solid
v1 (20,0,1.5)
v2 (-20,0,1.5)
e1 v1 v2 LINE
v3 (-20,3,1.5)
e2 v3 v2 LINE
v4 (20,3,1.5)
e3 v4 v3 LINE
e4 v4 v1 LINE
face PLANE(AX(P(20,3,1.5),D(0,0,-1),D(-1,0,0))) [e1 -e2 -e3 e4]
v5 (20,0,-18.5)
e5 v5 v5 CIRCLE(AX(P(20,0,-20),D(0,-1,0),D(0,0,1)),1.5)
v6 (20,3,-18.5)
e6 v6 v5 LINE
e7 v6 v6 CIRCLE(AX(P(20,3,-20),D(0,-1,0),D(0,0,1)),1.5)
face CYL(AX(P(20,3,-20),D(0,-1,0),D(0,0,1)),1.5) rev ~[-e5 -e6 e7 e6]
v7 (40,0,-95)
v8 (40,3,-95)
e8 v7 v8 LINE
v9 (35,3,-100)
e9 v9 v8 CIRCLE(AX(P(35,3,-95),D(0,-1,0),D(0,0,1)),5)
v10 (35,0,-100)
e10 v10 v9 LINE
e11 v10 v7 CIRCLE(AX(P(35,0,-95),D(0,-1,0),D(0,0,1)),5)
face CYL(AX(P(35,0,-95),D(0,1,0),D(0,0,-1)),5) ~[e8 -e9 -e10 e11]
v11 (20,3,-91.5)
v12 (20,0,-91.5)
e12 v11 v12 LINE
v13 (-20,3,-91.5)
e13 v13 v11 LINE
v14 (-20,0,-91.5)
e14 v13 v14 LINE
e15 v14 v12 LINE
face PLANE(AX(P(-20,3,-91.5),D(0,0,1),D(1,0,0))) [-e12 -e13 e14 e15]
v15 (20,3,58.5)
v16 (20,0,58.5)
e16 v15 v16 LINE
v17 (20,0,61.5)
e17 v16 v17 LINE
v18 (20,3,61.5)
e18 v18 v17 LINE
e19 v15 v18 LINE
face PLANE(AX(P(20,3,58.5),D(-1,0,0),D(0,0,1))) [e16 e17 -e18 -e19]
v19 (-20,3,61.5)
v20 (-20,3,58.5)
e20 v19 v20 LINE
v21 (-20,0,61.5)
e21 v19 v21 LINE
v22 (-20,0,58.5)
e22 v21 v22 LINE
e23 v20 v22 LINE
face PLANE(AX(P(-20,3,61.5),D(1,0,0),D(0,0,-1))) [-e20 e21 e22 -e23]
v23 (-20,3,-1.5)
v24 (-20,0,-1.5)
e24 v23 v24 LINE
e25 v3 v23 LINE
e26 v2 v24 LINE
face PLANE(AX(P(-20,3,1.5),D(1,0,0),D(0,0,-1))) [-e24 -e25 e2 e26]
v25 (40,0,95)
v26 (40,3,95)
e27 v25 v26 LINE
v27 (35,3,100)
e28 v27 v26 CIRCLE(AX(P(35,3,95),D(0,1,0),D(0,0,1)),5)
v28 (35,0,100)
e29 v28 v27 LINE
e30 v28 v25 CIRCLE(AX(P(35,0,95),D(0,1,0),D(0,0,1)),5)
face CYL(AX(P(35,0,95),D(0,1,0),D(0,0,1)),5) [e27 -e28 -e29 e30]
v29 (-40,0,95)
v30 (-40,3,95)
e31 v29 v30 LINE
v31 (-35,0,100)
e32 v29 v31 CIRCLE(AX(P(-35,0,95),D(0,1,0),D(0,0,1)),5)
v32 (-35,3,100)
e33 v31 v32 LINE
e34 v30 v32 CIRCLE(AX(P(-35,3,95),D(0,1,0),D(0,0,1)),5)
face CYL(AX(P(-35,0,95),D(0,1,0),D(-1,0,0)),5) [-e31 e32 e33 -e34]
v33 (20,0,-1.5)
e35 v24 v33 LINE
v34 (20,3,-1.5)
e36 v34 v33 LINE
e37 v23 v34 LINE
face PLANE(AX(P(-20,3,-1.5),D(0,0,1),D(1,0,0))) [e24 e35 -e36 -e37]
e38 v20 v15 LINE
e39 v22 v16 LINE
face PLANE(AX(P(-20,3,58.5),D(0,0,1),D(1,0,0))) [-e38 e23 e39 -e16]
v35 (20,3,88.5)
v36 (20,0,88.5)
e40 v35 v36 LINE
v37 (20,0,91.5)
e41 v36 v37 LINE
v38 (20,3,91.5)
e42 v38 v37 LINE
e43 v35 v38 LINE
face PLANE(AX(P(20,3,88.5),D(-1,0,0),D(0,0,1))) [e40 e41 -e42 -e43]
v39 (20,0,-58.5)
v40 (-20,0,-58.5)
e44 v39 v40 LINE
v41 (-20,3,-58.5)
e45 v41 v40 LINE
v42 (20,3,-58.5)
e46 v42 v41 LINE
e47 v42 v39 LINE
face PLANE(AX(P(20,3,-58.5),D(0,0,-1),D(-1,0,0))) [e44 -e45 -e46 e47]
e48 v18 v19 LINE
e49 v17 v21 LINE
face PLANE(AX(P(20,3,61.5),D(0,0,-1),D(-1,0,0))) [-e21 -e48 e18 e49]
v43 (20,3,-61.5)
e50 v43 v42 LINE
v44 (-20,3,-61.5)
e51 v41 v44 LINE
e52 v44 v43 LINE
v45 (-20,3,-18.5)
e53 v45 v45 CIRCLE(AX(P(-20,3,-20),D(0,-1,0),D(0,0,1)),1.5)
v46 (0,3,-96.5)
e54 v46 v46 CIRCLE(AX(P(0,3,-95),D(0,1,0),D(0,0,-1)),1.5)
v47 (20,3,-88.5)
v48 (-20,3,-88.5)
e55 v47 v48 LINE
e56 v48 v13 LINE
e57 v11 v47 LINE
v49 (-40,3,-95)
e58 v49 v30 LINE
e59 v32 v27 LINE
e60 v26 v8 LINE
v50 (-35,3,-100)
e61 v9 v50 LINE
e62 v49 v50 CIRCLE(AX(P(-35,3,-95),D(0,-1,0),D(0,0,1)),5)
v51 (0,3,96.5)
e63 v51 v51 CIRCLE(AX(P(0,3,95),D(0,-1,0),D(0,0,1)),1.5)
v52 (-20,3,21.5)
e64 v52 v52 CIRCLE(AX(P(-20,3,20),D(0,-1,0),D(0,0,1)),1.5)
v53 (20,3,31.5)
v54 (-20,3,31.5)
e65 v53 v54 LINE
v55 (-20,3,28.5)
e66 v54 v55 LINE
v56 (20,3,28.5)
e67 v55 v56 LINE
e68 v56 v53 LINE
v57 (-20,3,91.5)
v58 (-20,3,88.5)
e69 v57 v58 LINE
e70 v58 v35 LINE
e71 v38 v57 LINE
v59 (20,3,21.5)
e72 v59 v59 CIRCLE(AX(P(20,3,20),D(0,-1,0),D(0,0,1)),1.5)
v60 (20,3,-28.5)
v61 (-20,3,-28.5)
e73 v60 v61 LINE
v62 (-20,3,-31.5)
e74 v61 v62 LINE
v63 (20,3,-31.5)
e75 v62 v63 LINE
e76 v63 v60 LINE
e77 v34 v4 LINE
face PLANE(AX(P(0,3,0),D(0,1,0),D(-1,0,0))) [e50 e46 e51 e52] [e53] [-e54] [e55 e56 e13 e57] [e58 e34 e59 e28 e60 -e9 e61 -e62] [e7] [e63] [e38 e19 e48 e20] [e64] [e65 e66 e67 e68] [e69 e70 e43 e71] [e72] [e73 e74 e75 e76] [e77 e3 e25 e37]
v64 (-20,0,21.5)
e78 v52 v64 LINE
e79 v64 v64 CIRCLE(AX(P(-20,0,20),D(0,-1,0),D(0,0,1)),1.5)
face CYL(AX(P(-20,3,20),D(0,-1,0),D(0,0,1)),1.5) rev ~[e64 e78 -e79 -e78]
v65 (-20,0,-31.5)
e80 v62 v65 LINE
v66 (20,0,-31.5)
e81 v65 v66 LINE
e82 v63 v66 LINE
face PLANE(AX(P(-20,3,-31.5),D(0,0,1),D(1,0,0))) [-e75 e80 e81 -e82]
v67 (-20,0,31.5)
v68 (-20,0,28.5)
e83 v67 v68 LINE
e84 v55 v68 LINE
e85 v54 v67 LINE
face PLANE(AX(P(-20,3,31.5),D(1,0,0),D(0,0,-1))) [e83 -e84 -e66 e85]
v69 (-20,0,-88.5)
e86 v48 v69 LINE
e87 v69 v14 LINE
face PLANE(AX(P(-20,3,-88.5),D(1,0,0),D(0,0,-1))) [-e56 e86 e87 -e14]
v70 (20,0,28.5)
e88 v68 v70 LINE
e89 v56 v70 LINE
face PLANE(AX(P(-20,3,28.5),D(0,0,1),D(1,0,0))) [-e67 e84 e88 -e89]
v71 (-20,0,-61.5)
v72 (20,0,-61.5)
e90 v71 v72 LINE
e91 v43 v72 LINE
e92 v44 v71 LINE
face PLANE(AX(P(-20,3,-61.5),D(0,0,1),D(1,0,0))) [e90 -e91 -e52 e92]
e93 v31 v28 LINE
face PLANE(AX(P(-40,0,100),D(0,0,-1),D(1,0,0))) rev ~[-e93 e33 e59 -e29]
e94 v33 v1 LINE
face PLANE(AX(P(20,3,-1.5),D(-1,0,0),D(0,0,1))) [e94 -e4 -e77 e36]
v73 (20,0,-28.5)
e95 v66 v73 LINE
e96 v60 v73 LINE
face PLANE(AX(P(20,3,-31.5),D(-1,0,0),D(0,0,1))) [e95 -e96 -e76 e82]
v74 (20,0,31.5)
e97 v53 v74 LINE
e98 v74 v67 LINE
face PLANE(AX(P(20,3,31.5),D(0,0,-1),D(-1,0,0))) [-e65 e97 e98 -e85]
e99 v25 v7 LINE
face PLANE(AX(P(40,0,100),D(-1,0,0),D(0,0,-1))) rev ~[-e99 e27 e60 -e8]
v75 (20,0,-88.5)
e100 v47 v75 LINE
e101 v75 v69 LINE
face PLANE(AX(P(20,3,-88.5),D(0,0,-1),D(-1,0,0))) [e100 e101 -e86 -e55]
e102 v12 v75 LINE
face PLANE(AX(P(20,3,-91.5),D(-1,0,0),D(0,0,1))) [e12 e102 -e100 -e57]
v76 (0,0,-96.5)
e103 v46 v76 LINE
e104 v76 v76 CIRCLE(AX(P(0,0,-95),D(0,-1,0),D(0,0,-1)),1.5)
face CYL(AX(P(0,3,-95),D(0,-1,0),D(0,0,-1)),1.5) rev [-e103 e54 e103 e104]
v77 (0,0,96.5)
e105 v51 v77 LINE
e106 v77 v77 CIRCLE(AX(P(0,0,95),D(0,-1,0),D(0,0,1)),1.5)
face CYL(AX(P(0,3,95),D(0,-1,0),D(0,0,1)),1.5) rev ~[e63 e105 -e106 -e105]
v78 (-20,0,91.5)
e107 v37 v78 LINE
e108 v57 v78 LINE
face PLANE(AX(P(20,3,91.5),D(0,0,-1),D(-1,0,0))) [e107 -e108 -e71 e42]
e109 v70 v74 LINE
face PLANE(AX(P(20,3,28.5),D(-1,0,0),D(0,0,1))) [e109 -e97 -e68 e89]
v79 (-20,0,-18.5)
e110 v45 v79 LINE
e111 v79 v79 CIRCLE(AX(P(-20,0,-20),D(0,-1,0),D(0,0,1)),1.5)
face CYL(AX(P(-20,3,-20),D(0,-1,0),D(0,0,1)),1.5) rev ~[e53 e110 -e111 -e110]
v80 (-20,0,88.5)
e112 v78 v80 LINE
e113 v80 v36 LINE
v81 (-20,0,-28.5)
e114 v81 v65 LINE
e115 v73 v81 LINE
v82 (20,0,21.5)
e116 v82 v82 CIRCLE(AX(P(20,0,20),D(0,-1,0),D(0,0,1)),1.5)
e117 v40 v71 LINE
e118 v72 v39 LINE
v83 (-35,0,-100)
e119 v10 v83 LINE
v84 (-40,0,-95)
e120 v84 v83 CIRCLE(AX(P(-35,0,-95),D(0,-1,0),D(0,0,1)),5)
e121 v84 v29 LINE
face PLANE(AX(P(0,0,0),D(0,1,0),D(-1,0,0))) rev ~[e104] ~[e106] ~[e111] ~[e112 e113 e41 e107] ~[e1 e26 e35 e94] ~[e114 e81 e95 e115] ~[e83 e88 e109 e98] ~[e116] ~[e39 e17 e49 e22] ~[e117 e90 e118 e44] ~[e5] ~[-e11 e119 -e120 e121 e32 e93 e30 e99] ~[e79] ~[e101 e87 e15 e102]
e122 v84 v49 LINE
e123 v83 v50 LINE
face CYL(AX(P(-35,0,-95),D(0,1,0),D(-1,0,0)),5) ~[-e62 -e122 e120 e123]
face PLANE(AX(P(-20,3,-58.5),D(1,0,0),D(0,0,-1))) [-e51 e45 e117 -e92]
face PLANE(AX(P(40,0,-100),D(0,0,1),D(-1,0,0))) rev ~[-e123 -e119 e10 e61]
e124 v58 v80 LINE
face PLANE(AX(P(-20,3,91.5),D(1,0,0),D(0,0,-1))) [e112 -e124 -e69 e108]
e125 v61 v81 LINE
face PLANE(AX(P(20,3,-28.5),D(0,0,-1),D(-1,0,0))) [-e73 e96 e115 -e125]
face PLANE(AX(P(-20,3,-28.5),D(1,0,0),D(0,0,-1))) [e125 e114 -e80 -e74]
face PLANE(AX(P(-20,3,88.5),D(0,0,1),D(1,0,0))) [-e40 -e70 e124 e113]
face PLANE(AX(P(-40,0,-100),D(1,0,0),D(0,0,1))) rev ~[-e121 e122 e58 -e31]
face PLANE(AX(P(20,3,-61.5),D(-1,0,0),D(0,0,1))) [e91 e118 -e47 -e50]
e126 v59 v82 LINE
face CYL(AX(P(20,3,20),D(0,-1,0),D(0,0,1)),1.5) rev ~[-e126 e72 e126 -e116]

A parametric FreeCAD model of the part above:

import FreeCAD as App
import Part
import Sketcher
Q = App.Units.Quantity


def edges_at(feature, points):
    """Names of the edges that pass closest to the given points."""
    edges = feature.Shape.Edges
    near = lambda p: min(range(len(edges)), key=lambda i: edges[i].distToShape(Part.Vertex(*p))[0])
    return sorted({f"Edge{near(p) + 1}" for p in points})

doc = App.newDocument("Part")
params = doc.addObject("Spreadsheet::Sheet", "Params")
for row, (alias, value) in enumerate([
    ("sketch1_width", "80 mm"),
    ("sketch1_height", "200 mm"),
    ("pad1_length", "3 mm"),
    ("sketch2_diameter", "3 mm"),
    ("hole_diameter", "3 mm"),
    ("sketch3_width", "40 mm"),
    ("sketch3_height", "3 mm"),
    ("pocket1_length", "3 mm"),
    ("sketch4_diameter", "3 mm"),
    ("hole2_diameter", "3 mm"),
    ("fillet_radius", "5 mm"),
], start=1):
    params.set(f"A{row}", alias)
    params.set(f"B{row}", "=" + value)
    params.setAlias(f"B{row}", alias)

body = doc.addObject("PartDesign::Body", "Body")

# Sketch on XZ plane
sketch1 = doc.addObject("Sketcher::SketchObject", "Sketch")
body.addObject(sketch1)
sketch1.AttachmentSupport = (doc.XZ_Plane, [""])
sketch1.MapMode = "FlatFace"
sketch1.addGeometry([
    Part.LineSegment(App.Vector(-40, -100, 0), App.Vector(-40, 100, 0)),
    Part.LineSegment(App.Vector(-40, 100, 0), App.Vector(40, 100, 0)),
    Part.LineSegment(App.Vector(40, 100, 0), App.Vector(40, -100, 0)),
    Part.LineSegment(App.Vector(40, -100, 0), App.Vector(-40, -100, 0)),
], False)
sketch1.addConstraint([
    Sketcher.Constraint("Coincident", 0, 2, 1, 1),
    Sketcher.Constraint("Coincident", 1, 2, 2, 1),
    Sketcher.Constraint("Coincident", 2, 2, 3, 1),
    Sketcher.Constraint("Coincident", 3, 2, 0, 1),
    Sketcher.Constraint("Vertical", 0),
    Sketcher.Constraint("Horizontal", 1),
    Sketcher.Constraint("Vertical", 2),
    Sketcher.Constraint("Horizontal", 3),
    Sketcher.Constraint("Symmetric", 0, 2, 2, 2, -1, 1),
    Sketcher.Constraint("DistanceX", 1, 1, 1, 2, Q("80 mm")),
    Sketcher.Constraint("DistanceY", 0, 1, 0, 2, Q("200 mm")),
])
sketch1.setExpression("Constraints[9]", "Params.sketch1_width")
sketch1.setExpression("Constraints[10]", "Params.sketch1_height")
pad1 = doc.addObject("PartDesign::Pad", "Pad")
body.addObject(pad1)
pad1.Profile = sketch1
pad1.setExpression("Length", "Params.pad1_length")
pad1.Reversed = True

# Sketch on XZ plane
sketch2 = doc.addObject("Sketcher::SketchObject", "Sketch001")
body.addObject(sketch2)
sketch2.AttachmentSupport = (doc.XZ_Plane, [""])
sketch2.MapMode = "FlatFace"
sketch2.AttachmentOffset = App.Placement(App.Vector(0, 0, -3), App.Rotation())
sketch2.addGeometry([
    Part.Circle(App.Vector(-20, 20, 0), App.Vector(0, 0, 1), 1.5),
    Part.Circle(App.Vector(-20, -20, 0), App.Vector(0, 0, 1), 1.5),
    Part.Circle(App.Vector(20, -20, 0), App.Vector(0, 0, 1), 1.5),
    Part.Circle(App.Vector(20, 20, 0), App.Vector(0, 0, 1), 1.5),
], False)
sketch2.addConstraint([
    Sketcher.Constraint("Equal", 0, 1),
    Sketcher.Constraint("Equal", 1, 2),
    Sketcher.Constraint("Equal", 2, 3),
    Sketcher.Constraint("Symmetric", 0, 3, 2, 3, -1, 1),
    Sketcher.Constraint("Symmetric", 1, 3, 3, 3, -1, 1),
    Sketcher.Constraint("Symmetric", 1, 3, 2, 3, -2),
    Sketcher.Constraint("Diameter", 0, Q("3 mm")),
    Sketcher.Constraint("DistanceX", 0, 3, -1, 1, Q("20 mm")),
    Sketcher.Constraint("DistanceY", -1, 1, 0, 3, Q("20 mm")),
])
sketch2.setExpression("Constraints[6]", "Params.sketch2_diameter")
doc.recompute()
hole = doc.addObject("PartDesign::Hole", "Hole")
body.addObject(hole)
hole.Profile = sketch2
hole.ThreadType = "None"
hole.setExpression("Diameter", "Params.hole_diameter")
hole.DepthType = "ThroughAll"
hole.Reversed = True

# Sketch on XZ plane
sketch3 = doc.addObject("Sketcher::SketchObject", "Sketch002")
body.addObject(sketch3)
sketch3.AttachmentSupport = (doc.XZ_Plane, [""])
sketch3.MapMode = "FlatFace"
sketch3.AttachmentOffset = App.Placement(App.Vector(0, 0, -3), App.Rotation())
sketch3.addGeometry([
    Part.LineSegment(App.Vector(-20, 1.5, 0), App.Vector(20, 1.5, 0)),  # 0
    Part.LineSegment(App.Vector(20, 1.5, 0), App.Vector(20, -1.5, 0)),  # 1
    Part.LineSegment(App.Vector(20, -1.5, 0), App.Vector(-20, -1.5, 0)),  # 2
    Part.LineSegment(App.Vector(-20, -1.5, 0), App.Vector(-20, 1.5, 0)),  # 3
    Part.LineSegment(App.Vector(20, 28.5, 0), App.Vector(-20, 28.5, 0)),  # 4
    Part.LineSegment(App.Vector(-20, 28.5, 0), App.Vector(-20, 31.5, 0)),  # 5
    Part.LineSegment(App.Vector(-20, 31.5, 0), App.Vector(20, 31.5, 0)),  # 6
    Part.LineSegment(App.Vector(20, 31.5, 0), App.Vector(20, 28.5, 0)),  # 7
    Part.LineSegment(App.Vector(20, 58.5, 0), App.Vector(-20, 58.5, 0)),  # 8
    Part.LineSegment(App.Vector(-20, 58.5, 0), App.Vector(-20, 61.5, 0)),  # 9
    Part.LineSegment(App.Vector(-20, 61.5, 0), App.Vector(20, 61.5, 0)),  # 10
    Part.LineSegment(App.Vector(20, 61.5, 0), App.Vector(20, 58.5, 0)),  # 11
    Part.LineSegment(App.Vector(20, 88.5, 0), App.Vector(-20, 88.5, 0)),  # 12
    Part.LineSegment(App.Vector(-20, 88.5, 0), App.Vector(-20, 91.5, 0)),  # 13
    Part.LineSegment(App.Vector(-20, 91.5, 0), App.Vector(20, 91.5, 0)),  # 14
    Part.LineSegment(App.Vector(20, 91.5, 0), App.Vector(20, 88.5, 0)),  # 15
    Part.LineSegment(App.Vector(20, -31.5, 0), App.Vector(-20, -31.5, 0)),  # 16
    Part.LineSegment(App.Vector(-20, -31.5, 0), App.Vector(-20, -28.5, 0)),  # 17
    Part.LineSegment(App.Vector(-20, -28.5, 0), App.Vector(20, -28.5, 0)),  # 18
    Part.LineSegment(App.Vector(20, -28.5, 0), App.Vector(20, -31.5, 0)),  # 19
    Part.LineSegment(App.Vector(20, -61.5, 0), App.Vector(-20, -61.5, 0)),  # 20
    Part.LineSegment(App.Vector(-20, -61.5, 0), App.Vector(-20, -58.5, 0)),  # 21
    Part.LineSegment(App.Vector(-20, -58.5, 0), App.Vector(20, -58.5, 0)),  # 22
    Part.LineSegment(App.Vector(20, -58.5, 0), App.Vector(20, -61.5, 0)),  # 23
    Part.LineSegment(App.Vector(20, -91.5, 0), App.Vector(-20, -91.5, 0)),  # 24
    Part.LineSegment(App.Vector(-20, -91.5, 0), App.Vector(-20, -88.5, 0)),  # 25
    Part.LineSegment(App.Vector(-20, -88.5, 0), App.Vector(20, -88.5, 0)),  # 26
    Part.LineSegment(App.Vector(20, -88.5, 0), App.Vector(20, -91.5, 0)),  # 27
], False)
sketch3.addConstraint([
    Sketcher.Constraint("Coincident", 0, 2, 1, 1),
    Sketcher.Constraint("Coincident", 1, 2, 2, 1),
    Sketcher.Constraint("Coincident", 2, 2, 3, 1),
    Sketcher.Constraint("Coincident", 3, 2, 0, 1),
    Sketcher.Constraint("Coincident", 4, 2, 5, 1),
    Sketcher.Constraint("Coincident", 5, 2, 6, 1),
    Sketcher.Constraint("Coincident", 6, 2, 7, 1),
    Sketcher.Constraint("Coincident", 7, 2, 4, 1),
    Sketcher.Constraint("Coincident", 8, 2, 9, 1),
    Sketcher.Constraint("Coincident", 9, 2, 10, 1),
    Sketcher.Constraint("Coincident", 10, 2, 11, 1),
    Sketcher.Constraint("Coincident", 11, 2, 8, 1),
    Sketcher.Constraint("Coincident", 12, 2, 13, 1),
    Sketcher.Constraint("Coincident", 13, 2, 14, 1),
    Sketcher.Constraint("Coincident", 14, 2, 15, 1),
    Sketcher.Constraint("Coincident", 15, 2, 12, 1),
    Sketcher.Constraint("Coincident", 16, 2, 17, 1),
    Sketcher.Constraint("Coincident", 17, 2, 18, 1),
    Sketcher.Constraint("Coincident", 18, 2, 19, 1),
    Sketcher.Constraint("Coincident", 19, 2, 16, 1),
    Sketcher.Constraint("Coincident", 20, 2, 21, 1),
    Sketcher.Constraint("Coincident", 21, 2, 22, 1),
    Sketcher.Constraint("Coincident", 22, 2, 23, 1),
    Sketcher.Constraint("Coincident", 23, 2, 20, 1),
    Sketcher.Constraint("Coincident", 24, 2, 25, 1),
    Sketcher.Constraint("Coincident", 25, 2, 26, 1),
    Sketcher.Constraint("Coincident", 26, 2, 27, 1),
    Sketcher.Constraint("Coincident", 27, 2, 24, 1),
    Sketcher.Constraint("Horizontal", 0),
    Sketcher.Constraint("Vertical", 1),
    Sketcher.Constraint("Horizontal", 2),
    Sketcher.Constraint("Vertical", 3),
    Sketcher.Constraint("Horizontal", 4),
    Sketcher.Constraint("Vertical", 5),
    Sketcher.Constraint("Horizontal", 6),
    Sketcher.Constraint("Vertical", 7),
    Sketcher.Constraint("Horizontal", 8),
    Sketcher.Constraint("Vertical", 9),
    Sketcher.Constraint("Horizontal", 10),
    Sketcher.Constraint("Vertical", 11),
    Sketcher.Constraint("Horizontal", 12),
    Sketcher.Constraint("Vertical", 13),
    Sketcher.Constraint("Horizontal", 14),
    Sketcher.Constraint("Vertical", 15),
    Sketcher.Constraint("Horizontal", 16),
    Sketcher.Constraint("Vertical", 17),
    Sketcher.Constraint("Horizontal", 18),
    Sketcher.Constraint("Vertical", 19),
    Sketcher.Constraint("Horizontal", 20),
    Sketcher.Constraint("Vertical", 21),
    Sketcher.Constraint("Horizontal", 22),
    Sketcher.Constraint("Vertical", 23),
    Sketcher.Constraint("Horizontal", 24),
    Sketcher.Constraint("Vertical", 25),
    Sketcher.Constraint("Horizontal", 26),
    Sketcher.Constraint("Vertical", 27),
    Sketcher.Constraint("Symmetric", 0, 2, 2, 2, -1, 1),
    Sketcher.Constraint("Symmetric", 6, 2, 16, 2, -1, 1),
    Sketcher.Constraint("Symmetric", 4, 2, 18, 2, -1, 1),
    Sketcher.Constraint("Symmetric", 10, 2, 20, 2, -1, 1),
    Sketcher.Constraint("Symmetric", 8, 2, 22, 2, -1, 1),
    Sketcher.Constraint("Symmetric", 14, 2, 24, 2, -1, 1),
    Sketcher.Constraint("Symmetric", 12, 2, 26, 2, -1, 1),
    Sketcher.Constraint("Vertical", 3, 2, 4, 2),
    Sketcher.Constraint("Vertical", 1, 2, 6, 2),
    Sketcher.Constraint("Vertical", 5, 2, 8, 2),
    Sketcher.Constraint("Vertical", 7, 2, 10, 2),
    Sketcher.Constraint("Vertical", 9, 2, 12, 2),
    Sketcher.Constraint("Vertical", 11, 2, 14, 2),
    Sketcher.Constraint("Equal", 3, 5),
    Sketcher.Constraint("Equal", 7, 9),
    Sketcher.Constraint("Equal", 11, 13),
    Sketcher.Constraint("DistanceX", 0, 1, 0, 2, Q("40 mm")),
    Sketcher.Constraint("DistanceY", 1, 2, 1, 1, Q("3 mm")),
    Sketcher.Constraint("DistanceY", 2, 2, 4, 2, Q("30 mm")),
    Sketcher.Constraint("DistanceY", 4, 2, 8, 2, Q("30 mm")),
    Sketcher.Constraint("DistanceY", 8, 2, 12, 2, Q("30 mm")),
])
sketch3.setExpression("Constraints[72]", "Params.sketch3_width")
sketch3.setExpression("Constraints[73]", "Params.sketch3_height")
pocket1 = doc.addObject("PartDesign::Pocket", "Pocket")
body.addObject(pocket1)
pocket1.Profile = sketch3
pocket1.setExpression("Length", "Params.pocket1_length")
pocket1.Reversed = True

# Sketch on XZ plane
sketch4 = doc.addObject("Sketcher::SketchObject", "Sketch003")
body.addObject(sketch4)
sketch4.AttachmentSupport = (doc.XZ_Plane, [""])
sketch4.MapMode = "FlatFace"
sketch4.AttachmentOffset = App.Placement(App.Vector(0, 0, -3), App.Rotation())
sketch4.addGeometry(Part.Circle(App.Vector(0, 95, 0), App.Vector(0, 0, 1), 1.5), False)
sketch4.addConstraint([
    Sketcher.Constraint("PointOnObject", 0, 3, -2),
    Sketcher.Constraint("Diameter", 0, Q("3 mm")),
    Sketcher.Constraint("DistanceY", -1, 1, 0, 3, Q("95 mm")),
])
sketch4.setExpression("Constraints[1]", "Params.sketch4_diameter")
doc.recompute()
hole2 = doc.addObject("PartDesign::Hole", "Hole001")
body.addObject(hole2)
hole2.Profile = sketch4
hole2.ThreadType = "None"
hole2.setExpression("Diameter", "Params.hole2_diameter")
hole2.DepthType = "ThroughAll"
hole2.Reversed = True
doc.recompute()

mirrored = doc.addObject("PartDesign::Mirrored", "Mirrored")
body.addObject(mirrored)
mirrored.Originals = [hole2]
mirrored.MirrorPlane = (doc.XY_Plane, [""])
body.Tip = mirrored
doc.recompute()

fillet = doc.addObject("PartDesign::Fillet", "Fillet")
body.addObject(fillet)
fillet.Base = (mirrored, edges_at(mirrored, [
    (40, 1.5, 100),
    (-40, 1.5, 100),
    (40, 1.5, -100),
    (-40, 1.5, -100),
]))
fillet.setExpression("Radius", "Params.fillet_radius")

doc.recompute()
